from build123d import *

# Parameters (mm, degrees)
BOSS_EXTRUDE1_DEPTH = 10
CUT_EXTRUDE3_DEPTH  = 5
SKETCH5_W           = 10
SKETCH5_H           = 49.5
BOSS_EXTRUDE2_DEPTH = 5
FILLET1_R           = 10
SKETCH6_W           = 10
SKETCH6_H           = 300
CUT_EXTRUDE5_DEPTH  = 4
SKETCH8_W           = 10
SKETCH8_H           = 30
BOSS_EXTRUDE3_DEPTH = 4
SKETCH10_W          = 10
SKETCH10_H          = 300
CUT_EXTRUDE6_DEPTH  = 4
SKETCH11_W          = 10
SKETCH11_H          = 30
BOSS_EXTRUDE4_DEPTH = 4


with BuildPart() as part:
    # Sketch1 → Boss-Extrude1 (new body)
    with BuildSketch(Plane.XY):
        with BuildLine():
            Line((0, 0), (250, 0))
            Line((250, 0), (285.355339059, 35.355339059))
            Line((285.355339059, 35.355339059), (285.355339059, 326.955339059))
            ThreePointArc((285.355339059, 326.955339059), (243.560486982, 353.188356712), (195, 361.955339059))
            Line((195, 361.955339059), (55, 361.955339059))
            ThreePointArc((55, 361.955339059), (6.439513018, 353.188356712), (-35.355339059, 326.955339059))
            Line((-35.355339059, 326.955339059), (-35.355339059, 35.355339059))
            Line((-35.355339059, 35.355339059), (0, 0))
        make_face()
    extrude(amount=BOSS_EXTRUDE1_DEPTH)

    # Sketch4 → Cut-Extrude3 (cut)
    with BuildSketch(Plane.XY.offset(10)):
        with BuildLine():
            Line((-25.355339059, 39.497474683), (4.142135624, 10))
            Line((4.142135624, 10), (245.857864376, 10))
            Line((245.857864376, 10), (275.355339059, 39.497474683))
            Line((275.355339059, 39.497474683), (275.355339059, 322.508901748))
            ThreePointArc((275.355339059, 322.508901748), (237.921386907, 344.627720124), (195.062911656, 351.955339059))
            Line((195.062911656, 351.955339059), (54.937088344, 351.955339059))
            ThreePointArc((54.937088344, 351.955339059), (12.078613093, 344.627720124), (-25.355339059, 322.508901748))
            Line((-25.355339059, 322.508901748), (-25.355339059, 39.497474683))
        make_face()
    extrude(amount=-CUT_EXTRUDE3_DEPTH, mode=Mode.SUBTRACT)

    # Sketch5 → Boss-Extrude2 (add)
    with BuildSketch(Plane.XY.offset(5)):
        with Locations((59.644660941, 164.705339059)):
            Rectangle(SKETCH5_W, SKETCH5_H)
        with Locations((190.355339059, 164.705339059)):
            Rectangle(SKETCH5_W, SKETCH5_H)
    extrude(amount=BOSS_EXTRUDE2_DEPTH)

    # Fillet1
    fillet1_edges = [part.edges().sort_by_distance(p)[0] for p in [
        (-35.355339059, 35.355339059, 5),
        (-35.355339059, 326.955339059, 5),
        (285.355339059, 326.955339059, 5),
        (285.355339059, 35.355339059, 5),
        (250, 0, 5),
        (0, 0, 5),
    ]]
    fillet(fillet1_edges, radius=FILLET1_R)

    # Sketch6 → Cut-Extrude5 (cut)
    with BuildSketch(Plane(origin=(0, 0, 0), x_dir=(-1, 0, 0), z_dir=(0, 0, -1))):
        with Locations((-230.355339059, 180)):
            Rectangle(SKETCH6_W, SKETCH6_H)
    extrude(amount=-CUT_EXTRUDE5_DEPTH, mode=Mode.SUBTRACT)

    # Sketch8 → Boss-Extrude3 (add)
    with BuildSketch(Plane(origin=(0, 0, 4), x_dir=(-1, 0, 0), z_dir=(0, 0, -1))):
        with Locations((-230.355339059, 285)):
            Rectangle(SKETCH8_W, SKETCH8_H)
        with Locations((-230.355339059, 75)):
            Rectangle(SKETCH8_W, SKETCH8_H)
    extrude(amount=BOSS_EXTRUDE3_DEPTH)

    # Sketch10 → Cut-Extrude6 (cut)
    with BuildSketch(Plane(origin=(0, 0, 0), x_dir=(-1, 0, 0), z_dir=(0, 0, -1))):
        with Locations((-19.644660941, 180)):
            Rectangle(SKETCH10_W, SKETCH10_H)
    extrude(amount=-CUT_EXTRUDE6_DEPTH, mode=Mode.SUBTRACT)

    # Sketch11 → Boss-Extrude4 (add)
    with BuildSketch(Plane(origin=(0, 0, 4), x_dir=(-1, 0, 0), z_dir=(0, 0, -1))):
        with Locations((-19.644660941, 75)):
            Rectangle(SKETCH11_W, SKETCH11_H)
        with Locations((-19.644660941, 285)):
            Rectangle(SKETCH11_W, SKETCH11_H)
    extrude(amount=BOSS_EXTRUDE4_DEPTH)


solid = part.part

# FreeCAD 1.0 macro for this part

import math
import FreeCAD as App
import Part
import Sketcher
Q = App.Units.Quantity


def edges_at(feature, points):
    """Names of the edges that pass closest to the given points."""
    edges = feature.Shape.Edges
    near = lambda p: min(range(len(edges)), key=lambda i: edges[i].distToShape(Part.Vertex(*p))[0])
    return sorted({f"Edge{near(p) + 1}" for p in points})


def add_polygon(sketch, points):
    """Adds a closed chain of lines whose ends are joined by coincident constraints."""
    first, n = sketch.GeometryCount, len(points)
    for a, b in zip(points, points[1:] + points[:1]):
        sketch.addGeometry(Part.LineSegment(App.Vector(*a, 0), App.Vector(*b, 0)), False)
    for i in range(n):
        sketch.addConstraint(Sketcher.Constraint("Coincident", first + i, 2, first + (i + 1) % n, 1))

doc = App.newDocument("Part")
params = doc.addObject("Spreadsheet::Sheet", "Params")
for row, (alias, value) in enumerate([
    ("sketch1_radius", "130 mm"),
    ("sketch1_width", "250 mm"),
    ("sketch1_width2", "140 mm"),
    ("sketch1_length", "50 mm"),
    ("sketch1_height", "291.6 mm"),
    ("pad1_length", "10 mm"),
    ("sketch2_radius", "120 mm"),
    ("pocket1_length", "5 mm"),
    ("sketch3_width", "10 mm"),
    ("sketch3_height", "49.5 mm"),
    ("pad2_length", "5 mm"),
    ("fillet_radius", "10 mm"),
    ("sketch4_width", "10 mm"),
    ("sketch4_height", "300 mm"),
    ("pocket2_length", "4 mm"),
    ("sketch5_width", "10 mm"),
    ("sketch5_height", "30 mm"),
    ("pad3_length", "4 mm"),
    ("sketch6_width", "10 mm"),
    ("sketch6_height", "300 mm"),
    ("pocket3_length", "4 mm"),
    ("sketch7_width", "10 mm"),
    ("sketch7_height", "30 mm"),
    ("pad4_length", "4 mm"),
], start=1):
    params.set(f"A{row}", alias)
    params.set(f"B{row}", "=" + value)
    params.setAlias(f"B{row}", alias)

body = doc.addObject("PartDesign::Body", "Body")

# Sketch on XY plane
sketch1 = body.newObject("Sketcher::SketchObject", "Sketch")
sketch1.AttachmentSupport = (doc.getObject("XY_Plane"), [""])
sketch1.MapMode = "FlatFace"
sketch1.addGeometry(Part.LineSegment(App.Vector(0, 0, 0), App.Vector(250, 0, 0)), False)
sketch1.addGeometry(Part.LineSegment(App.Vector(250, 0, 0), App.Vector(285, 35, 0)), False)
sketch1.addGeometry(Part.LineSegment(App.Vector(285, 35, 0), App.Vector(285, 327, 0)), False)
sketch1.addGeometry(Part.ArcOfCircle(Part.Circle(App.Vector(197, 232, 0), App.Vector(0, 0, 1), 130), math.radians(47), math.radians(91)), False)
sketch1.addGeometry(Part.LineSegment(App.Vector(195, 362, 0), App.Vector(55, 362, 0)), False)
sketch1.addGeometry(Part.ArcOfCircle(Part.Circle(App.Vector(53, 232, 0), App.Vector(0, 0, 1), 130), math.radians(89), math.radians(133)), False)
sketch1.addGeometry(Part.LineSegment(App.Vector(-35, 327, 0), App.Vector(-35, 35, 0)), False)
sketch1.addGeometry(Part.LineSegment(App.Vector(-35, 35, 0), App.Vector(0, 0, 0)), False)
sketch1.addConstraint(Sketcher.Constraint("Coincident", 0, 2, 1, 1))
sketch1.addConstraint(Sketcher.Constraint("Coincident", 1, 2, 2, 1))
sketch1.addConstraint(Sketcher.Constraint("Coincident", 2, 2, 3, 1))
sketch1.addConstraint(Sketcher.Constraint("Coincident", 3, 2, 4, 1))
sketch1.addConstraint(Sketcher.Constraint("Coincident", 4, 2, 5, 1))
sketch1.addConstraint(Sketcher.Constraint("Coincident", 5, 2, 6, 1))
sketch1.addConstraint(Sketcher.Constraint("Coincident", 6, 2, 7, 1))
sketch1.addConstraint(Sketcher.Constraint("Coincident", 7, 2, 0, 1))
sketch1.addConstraint(Sketcher.Constraint("Horizontal", 0))
sketch1.addConstraint(Sketcher.Constraint("Vertical", 2))
sketch1.addConstraint(Sketcher.Constraint("Horizontal", 4))
sketch1.addConstraint(Sketcher.Constraint("Vertical", 6))
sketch1.addConstraint(Sketcher.Constraint("Coincident", 7, 2, -1, 1))
sketch1.addConstraint(Sketcher.Constraint("Equal", 3, 5))
sketch1.addConstraint(Sketcher.Constraint("Perpendicular", 1, 7))
sketch1.addConstraint(Sketcher.Constraint("Horizontal", 3, 3, 5, 3))
sketch1.addConstraint(Sketcher.Constraint("Horizontal", 2, 2, 5, 2))
sketch1.addConstraint(Sketcher.Constraint("Horizontal", 1, 2, 6, 2))
sketch1.addConstraint(Sketcher.Constraint("Equal", 1, 7))
sketch1.addConstraint(Sketcher.Constraint("Radius", 3, Q("130 mm")))
sketch1.addConstraint(Sketcher.Constraint("DistanceX", 0, 1, 0, 2, Q("250 mm")))
sketch1.addConstraint(Sketcher.Constraint("DistanceX", 4, 2, 4, 1, Q("140 mm")))
sketch1.addConstraint(Sketcher.Constraint("Distance", 1, Q("50 mm")))
sketch1.addConstraint(Sketcher.Constraint("DistanceY", 2, 1, 2, 2, Q("291.6 mm")))
sketch1.addConstraint(Sketcher.Constraint("DistanceY", 2, 2, 3, 2, Q("35 mm")))
sketch1.setExpression("Constraints[19]", "Params.sketch1_radius")
sketch1.setExpression("Constraints[20]", "Params.sketch1_width")
sketch1.setExpression("Constraints[21]", "Params.sketch1_width2")
sketch1.setExpression("Constraints[22]", "Params.sketch1_length")
sketch1.setExpression("Constraints[23]", "Params.sketch1_height")
pad1 = body.newObject("PartDesign::Pad", "Pad")
pad1.Profile = sketch1
pad1.setExpression("Length", "Params.pad1_length")

# Sketch on XY plane
sketch2 = body.newObject("Sketcher::SketchObject", "Sketch001")
sketch2.AttachmentSupport = (doc.getObject("XY_Plane"), [""])
sketch2.MapMode = "FlatFace"
sketch2.AttachmentOffset = App.Placement(App.Vector(0, 0, 10), App.Rotation())
sketch2.addGeometry(Part.LineSegment(App.Vector(-25, 39, 0), App.Vector(4, 10, 0)), False)
sketch2.addGeometry(Part.LineSegment(App.Vector(4, 10, 0), App.Vector(246, 10, 0)), False)
sketch2.addGeometry(Part.LineSegment(App.Vector(246, 10, 0), App.Vector(275, 39, 0)), False)
sketch2.addGeometry(Part.LineSegment(App.Vector(275, 39, 0), App.Vector(275, 323, 0)), False)
sketch2.addGeometry(Part.ArcOfCircle(Part.Circle(App.Vector(197, 232, 0), App.Vector(0, 0, 1), 120), math.radians(49), math.radians(91)), False)
sketch2.addGeometry(Part.LineSegment(App.Vector(195, 352, 0), App.Vector(55, 352, 0)), False)
sketch2.addGeometry(Part.ArcOfCircle(Part.Circle(App.Vector(53, 232, 0), App.Vector(0, 0, 1), 120), math.radians(89), math.radians(131)), False)
sketch2.addGeometry(Part.LineSegment(App.Vector(-25, 323, 0), App.Vector(-25, 39, 0)), False)
sketch2.addConstraint(Sketcher.Constraint("Coincident", 0, 2, 1, 1))
sketch2.addConstraint(Sketcher.Constraint("Coincident", 1, 2, 2, 1))
sketch2.addConstraint(Sketcher.Constraint("Coincident", 2, 2, 3, 1))
sketch2.addConstraint(Sketcher.Constraint("Coincident", 3, 2, 4, 1))
sketch2.addConstraint(Sketcher.Constraint("Coincident", 4, 2, 5, 1))
sketch2.addConstraint(Sketcher.Constraint("Coincident", 5, 2, 6, 1))
sketch2.addConstraint(Sketcher.Constraint("Coincident", 6, 2, 7, 1))
sketch2.addConstraint(Sketcher.Constraint("Coincident", 7, 2, 0, 1))
sketch2.addConstraint(Sketcher.Constraint("Horizontal", 1))
sketch2.addConstraint(Sketcher.Constraint("Vertical", 3))
sketch2.addConstraint(Sketcher.Constraint("Horizontal", 5))
sketch2.addConstraint(Sketcher.Constraint("Vertical", 7))
sketch2.addConstraint(Sketcher.Constraint("Equal", 4, 6))
sketch2.addConstraint(Sketcher.Constraint("Perpendicular", 0, 2))
sketch2.addConstraint(Sketcher.Constraint("Horizontal", 4, 3, 6, 3))
sketch2.addConstraint(Sketcher.Constraint("Horizontal", 3, 2, 6, 2))
sketch2.addConstraint(Sketcher.Constraint("Horizontal", 2, 2, 7, 2))
sketch2.addConstraint(Sketcher.Constraint("Equal", 0, 2))
sketch2.addConstraint(Sketcher.Constraint("Radius", 4, Q("120 mm")))
sketch2.addConstraint(Sketcher.Constraint("DistanceY", -1, 1, 0, 2, Q("10 mm")))
sketch2.addConstraint(Sketcher.Constraint("DistanceX", 1, 1, 1, 2, Q("241.715729 mm")))
sketch2.addConstraint(Sketcher.Constraint("DistanceY", -1, 1, 3, 2, Q("322.508902 mm")))
sketch2.addConstraint(Sketcher.Constraint("Distance", 0, Q("41.715729 mm")))
sketch2.addConstraint(Sketcher.Constraint("DistanceX", 5, 2, 5, 1, Q("140.125823 mm")))
sketch2.addConstraint(Sketcher.Constraint("DistanceY", -1, 1, 4, 3, Q("231.965229 mm")))
sketch2.addConstraint(Sketcher.Constraint("DistanceX", -1, 1, 2, 2, Q("275.355339 mm")))
sketch2.setExpression("Constraints[18]", "Params.sketch2_radius")
pocket1 = body.newObject("PartDesign::Pocket", "Pocket")
pocket1.Profile = sketch2
pocket1.setExpression("Length", "Params.pocket1_length")

# Sketch on XY plane
sketch3 = body.newObject("Sketcher::SketchObject", "Sketch002")
sketch3.AttachmentSupport = (doc.getObject("XY_Plane"), [""])
sketch3.MapMode = "FlatFace"
sketch3.AttachmentOffset = App.Placement(App.Vector(0, 0, 5), App.Rotation())
add_polygon(sketch3, [(55, 189), (55, 140), (65, 140), (65, 189)])  # lines 0-3
add_polygon(sketch3, [(185, 189), (185, 140), (195, 140), (195, 189)])  # lines 4-7
sketch3.addConstraint(Sketcher.Constraint("Vertical", 0))
sketch3.addConstraint(Sketcher.Constraint("Horizontal", 1))
sketch3.addConstraint(Sketcher.Constraint("Vertical", 2))
sketch3.addConstraint(Sketcher.Constraint("Horizontal", 3))
sketch3.addConstraint(Sketcher.Constraint("Vertical", 4))
sketch3.addConstraint(Sketcher.Constraint("Horizontal", 5))
sketch3.addConstraint(Sketcher.Constraint("Vertical", 6))
sketch3.addConstraint(Sketcher.Constraint("Horizontal", 7))
sketch3.addConstraint(Sketcher.Constraint("Horizontal", 1, 2, 4, 2))
sketch3.addConstraint(Sketcher.Constraint("Horizontal", 3, 2, 6, 2))
sketch3.addConstraint(Sketcher.Constraint("Equal", 3, 5))
sketch3.addConstraint(Sketcher.Constraint("DistanceX", 1, 1, 1, 2, Q("10 mm")))
sketch3.addConstraint(Sketcher.Constraint("DistanceY", 0, 2, 0, 1, Q("49.5 mm")))
sketch3.addConstraint(Sketcher.Constraint("DistanceX", -1, 1, 0, 2, Q("54.644661 mm")))
sketch3.addConstraint(Sketcher.Constraint("DistanceY", -1, 1, 0, 2, Q("139.955339 mm")))
sketch3.addConstraint(Sketcher.Constraint("DistanceX", -1, 1, 4, 2, Q("185.355339 mm")))
sketch3.setExpression("Constraints[19]", "Params.sketch3_width")
sketch3.setExpression("Constraints[20]", "Params.sketch3_height")
pad2 = body.newObject("PartDesign::Pad", "Pad001")
pad2.Profile = sketch3
pad2.setExpression("Length", "Params.pad2_length")
doc.recompute()

fillet = body.newObject("PartDesign::Fillet", "Fillet")
fillet.Base = (pad2, edges_at(pad2, [
    (-35.355, 35.355, 5),
    (-35.355, 326.955, 5),
    (285.355, 326.955, 5),
    (285.355, 35.355, 5),
    (250, 0, 5),
    (0, 0, 5),
]))
fillet.setExpression("Radius", "Params.fillet_radius")

# Sketch on XY plane
sketch4 = body.newObject("Sketcher::SketchObject", "Sketch003")
sketch4.AttachmentSupport = (doc.getObject("XY_Plane"), [""])
sketch4.MapMode = "FlatFace"
add_polygon(sketch4, [(235, 330), (235, 30), (225, 30), (225, 330)])  # lines 0-3
sketch4.addConstraint(Sketcher.Constraint("Vertical", 0))
sketch4.addConstraint(Sketcher.Constraint("Horizontal", 1))
sketch4.addConstraint(Sketcher.Constraint("Vertical", 2))
sketch4.addConstraint(Sketcher.Constraint("Horizontal", 3))
sketch4.addConstraint(Sketcher.Constraint("DistanceX", 1, 2, 1, 1, Q("10 mm")))
sketch4.addConstraint(Sketcher.Constraint("DistanceY", 0, 2, 0, 1, Q("300 mm")))
sketch4.addConstraint(Sketcher.Constraint("DistanceY", -1, 1, 0, 2, Q("30 mm")))
sketch4.addConstraint(Sketcher.Constraint("DistanceX", -1, 1, 0, 2, Q("235.355339 mm")))
sketch4.setExpression("Constraints[8]", "Params.sketch4_width")
sketch4.setExpression("Constraints[9]", "Params.sketch4_height")
pocket2 = body.newObject("PartDesign::Pocket", "Pocket001")
pocket2.Profile = sketch4
pocket2.setExpression("Length", "Params.pocket2_length")
pocket2.Reversed = True

# Sketch on XY plane
sketch5 = body.newObject("Sketcher::SketchObject", "Sketch004")
sketch5.AttachmentSupport = (doc.getObject("XY_Plane"), [""])
sketch5.MapMode = "FlatFace"
sketch5.AttachmentOffset = App.Placement(App.Vector(0, 0, 4), App.Rotation())
add_polygon(sketch5, [(235, 300), (235, 270), (225, 270), (225, 300)])  # lines 0-3
add_polygon(sketch5, [(235, 90), (235, 60), (225, 60), (225, 90)])  # lines 4-7
sketch5.addConstraint(Sketcher.Constraint("Vertical", 0))
sketch5.addConstraint(Sketcher.Constraint("Horizontal", 1))
sketch5.addConstraint(Sketcher.Constraint("Vertical", 2))
sketch5.addConstraint(Sketcher.Constraint("Horizontal", 3))
sketch5.addConstraint(Sketcher.Constraint("Vertical", 4))
sketch5.addConstraint(Sketcher.Constraint("Horizontal", 5))
sketch5.addConstraint(Sketcher.Constraint("Vertical", 6))
sketch5.addConstraint(Sketcher.Constraint("Horizontal", 7))
sketch5.addConstraint(Sketcher.Constraint("Vertical", 3, 2, 4, 2))
sketch5.addConstraint(Sketcher.Constraint("Vertical", 2, 2, 5, 2))
sketch5.addConstraint(Sketcher.Constraint("Equal", 2, 4))
sketch5.addConstraint(Sketcher.Constraint("DistanceX", 1, 2, 1, 1, Q("10 mm")))
sketch5.addConstraint(Sketcher.Constraint("DistanceY", 0, 2, 0, 1, Q("30 mm")))
sketch5.addConstraint(Sketcher.Constraint("DistanceY", -1, 1, 0, 2, Q("270 mm")))
sketch5.addConstraint(Sketcher.Constraint("DistanceY", -1, 1, 4, 2, Q("60 mm")))
sketch5.addConstraint(Sketcher.Constraint("DistanceX", -1, 1, 0, 2, Q("235.355339 mm")))
sketch5.setExpression("Constraints[19]", "Params.sketch5_width")
sketch5.setExpression("Constraints[20]", "Params.sketch5_height")
pad3 = body.newObject("PartDesign::Pad", "Pad002")
pad3.Profile = sketch5
pad3.setExpression("Length", "Params.pad3_length")
pad3.Reversed = True

# Sketch on XY plane
sketch6 = body.newObject("Sketcher::SketchObject", "Sketch005")
sketch6.AttachmentSupport = (doc.getObject("XY_Plane"), [""])
sketch6.MapMode = "FlatFace"
add_polygon(sketch6, [(25, 330), (25, 30), (15, 30), (15, 330)])  # lines 0-3
sketch6.addConstraint(Sketcher.Constraint("Vertical", 0))
sketch6.addConstraint(Sketcher.Constraint("Horizontal", 1))
sketch6.addConstraint(Sketcher.Constraint("Vertical", 2))
sketch6.addConstraint(Sketcher.Constraint("Horizontal", 3))
sketch6.addConstraint(Sketcher.Constraint("DistanceX", 1, 2, 1, 1, Q("10 mm")))
sketch6.addConstraint(Sketcher.Constraint("DistanceY", 0, 2, 0, 1, Q("300 mm")))
sketch6.addConstraint(Sketcher.Constraint("DistanceY", -1, 1, 0, 2, Q("30 mm")))
sketch6.addConstraint(Sketcher.Constraint("DistanceX", -1, 1, 0, 2, Q("24.644661 mm")))
sketch6.setExpression("Constraints[8]", "Params.sketch6_width")
sketch6.setExpression("Constraints[9]", "Params.sketch6_height")
pocket3 = body.newObject("PartDesign::Pocket", "Pocket002")
pocket3.Profile = sketch6
pocket3.setExpression("Length", "Params.pocket3_length")
pocket3.Reversed = True

# Sketch on XY plane
sketch7 = body.newObject("Sketcher::SketchObject", "Sketch006")
sketch7.AttachmentSupport = (doc.getObject("XY_Plane"), [""])
sketch7.MapMode = "FlatFace"
sketch7.AttachmentOffset = App.Placement(App.Vector(0, 0, 4), App.Rotation())
add_polygon(sketch7, [(25, 90), (25, 60), (15, 60), (15, 90)])  # lines 0-3
add_polygon(sketch7, [(25, 300), (25, 270), (15, 270), (15, 300)])  # lines 4-7
sketch7.addConstraint(Sketcher.Constraint("Vertical", 0))
sketch7.addConstraint(Sketcher.Constraint("Horizontal", 1))
sketch7.addConstraint(Sketcher.Constraint("Vertical", 2))
sketch7.addConstraint(Sketcher.Constraint("Horizontal", 3))
sketch7.addConstraint(Sketcher.Constraint("Vertical", 4))
sketch7.addConstraint(Sketcher.Constraint("Horizontal", 5))
sketch7.addConstraint(Sketcher.Constraint("Vertical", 6))
sketch7.addConstraint(Sketcher.Constraint("Horizontal", 7))
sketch7.addConstraint(Sketcher.Constraint("Vertical", 3, 2, 4, 2))
sketch7.addConstraint(Sketcher.Constraint("Vertical", 2, 2, 5, 2))
sketch7.addConstraint(Sketcher.Constraint("Equal", 2, 4))
sketch7.addConstraint(Sketcher.Constraint("DistanceX", 1, 2, 1, 1, Q("10 mm")))
sketch7.addConstraint(Sketcher.Constraint("DistanceY", 0, 2, 0, 1, Q("30 mm")))
sketch7.addConstraint(Sketcher.Constraint("DistanceY", -1, 1, 0, 2, Q("60 mm")))
sketch7.addConstraint(Sketcher.Constraint("DistanceY", -1, 1, 4, 2, Q("270 mm")))
sketch7.addConstraint(Sketcher.Constraint("DistanceX", -1, 1, 0, 2, Q("24.644661 mm")))
sketch7.setExpression("Constraints[19]", "Params.sketch7_width")
sketch7.setExpression("Constraints[20]", "Params.sketch7_height")
pad4 = body.newObject("PartDesign::Pad", "Pad003")
pad4.Profile = sketch7
pad4.setExpression("Length", "Params.pad4_length")
pad4.Reversed = True

doc.recompute()
